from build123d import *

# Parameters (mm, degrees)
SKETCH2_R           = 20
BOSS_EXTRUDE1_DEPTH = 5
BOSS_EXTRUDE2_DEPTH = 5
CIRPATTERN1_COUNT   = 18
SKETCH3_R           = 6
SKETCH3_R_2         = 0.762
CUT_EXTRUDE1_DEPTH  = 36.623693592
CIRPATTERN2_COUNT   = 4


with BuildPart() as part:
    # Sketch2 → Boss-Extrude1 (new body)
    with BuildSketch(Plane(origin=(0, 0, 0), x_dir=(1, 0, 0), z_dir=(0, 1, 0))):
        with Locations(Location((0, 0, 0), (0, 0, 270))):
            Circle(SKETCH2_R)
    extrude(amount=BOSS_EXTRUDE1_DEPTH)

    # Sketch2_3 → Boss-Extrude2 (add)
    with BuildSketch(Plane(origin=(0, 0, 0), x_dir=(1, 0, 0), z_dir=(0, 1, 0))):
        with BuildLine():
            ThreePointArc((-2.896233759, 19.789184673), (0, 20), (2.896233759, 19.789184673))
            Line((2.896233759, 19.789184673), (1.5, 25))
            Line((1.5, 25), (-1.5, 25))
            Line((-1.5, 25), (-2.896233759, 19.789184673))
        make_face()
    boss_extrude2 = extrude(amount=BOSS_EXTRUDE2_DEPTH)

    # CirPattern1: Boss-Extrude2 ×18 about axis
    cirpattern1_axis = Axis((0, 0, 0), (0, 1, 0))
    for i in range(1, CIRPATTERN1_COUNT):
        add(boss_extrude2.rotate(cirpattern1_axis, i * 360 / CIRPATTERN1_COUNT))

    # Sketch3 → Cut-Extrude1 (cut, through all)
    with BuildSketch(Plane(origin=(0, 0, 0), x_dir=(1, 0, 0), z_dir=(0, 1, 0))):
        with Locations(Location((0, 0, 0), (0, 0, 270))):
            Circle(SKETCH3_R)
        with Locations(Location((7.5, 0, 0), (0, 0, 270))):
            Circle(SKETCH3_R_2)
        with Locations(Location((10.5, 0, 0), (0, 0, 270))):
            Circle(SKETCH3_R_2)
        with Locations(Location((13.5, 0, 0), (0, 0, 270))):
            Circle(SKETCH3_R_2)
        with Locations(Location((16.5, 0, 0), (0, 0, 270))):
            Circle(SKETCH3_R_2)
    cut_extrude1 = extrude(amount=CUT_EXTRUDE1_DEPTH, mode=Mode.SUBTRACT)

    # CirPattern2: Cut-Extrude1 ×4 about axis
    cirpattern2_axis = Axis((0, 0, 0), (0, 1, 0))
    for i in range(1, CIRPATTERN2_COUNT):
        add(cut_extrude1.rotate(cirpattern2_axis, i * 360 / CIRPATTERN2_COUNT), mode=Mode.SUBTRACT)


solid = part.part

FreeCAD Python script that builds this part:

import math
import FreeCAD as App
import Part
import Sketcher
from FreeCAD import Vector
Q = App.Units.Quantity

doc = App.newDocument("Part")
params = doc.addObject("Spreadsheet::Sheet", "Params")
for row, (alias, value) in enumerate([
    ("sketch1_diameter", "40 mm"),
    ("pad1_length", "5 mm"),
    ("sketch2_radius", "20 mm"),
    ("sketch2_width", "3 mm"),
    ("pad2_length", "5 mm"),
    ("sketch3_diameter", "12 mm"),
], start=1):
    params.set(f"A{row}", alias)
    params.set(f"B{row}", "=" + value)
    params.setAlias(f"B{row}", alias)

body = doc.addObject("PartDesign::Body", "Body")

sketch1 = body.newObject("Sketcher::SketchObject", "Sketch")
sketch1.AttachmentSupport = (doc.getObject("XZ_Plane"), [""])
sketch1.MapMode = "FlatFace"
sketch1.addGeometry(Part.Circle(Vector(0, 0, 0), Vector(0, 0, 1), 20), False)
sketch1.addConstraint(Sketcher.Constraint("Coincident", 0, 3, -1, 1))
sketch1.addConstraint(Sketcher.Constraint("Diameter", 0, Q("40 mm")))
sketch1.setExpression("Constraints[1]", "Params.sketch1_diameter")
pad1 = body.newObject("PartDesign::Pad", "Pad")
pad1.Profile = sketch1
pad1.setExpression("Length", "Params.pad1_length")
pad1.Reversed = True

sketch2 = body.newObject("Sketcher::SketchObject", "Sketch001")
sketch2.AttachmentSupport = (doc.getObject("XZ_Plane"), [""])
sketch2.MapMode = "FlatFace"
sketch2.addGeometry(Part.ArcOfCircle(Part.Circle(Vector(0, 0, 0), Vector(0, 0, 1), 20), math.radians(-98.33), math.radians(-81.67)), False)
sketch2.addGeometry(Part.LineSegment(Vector(2.9, -19.8, 0), Vector(1.5, -25, 0)), False)
sketch2.addGeometry(Part.LineSegment(Vector(1.5, -25, 0), Vector(-1.5, -25, 0)), False)
sketch2.addGeometry(Part.LineSegment(Vector(-1.5, -25, 0), Vector(-2.9, -19.8, 0)), False)
sketch2.addConstraint(Sketcher.Constraint("Coincident", 0, 2, 1, 1))
sketch2.addConstraint(Sketcher.Constraint("Coincident", 1, 2, 2, 1))
sketch2.addConstraint(Sketcher.Constraint("Coincident", 2, 2, 3, 1))
sketch2.addConstraint(Sketcher.Constraint("Coincident", 3, 2, 0, 1))
sketch2.addConstraint(Sketcher.Constraint("Horizontal", 2))
sketch2.addConstraint(Sketcher.Constraint("Coincident", 0, 3, -1, 1))
sketch2.addConstraint(Sketcher.Constraint("Horizontal", 0, 2, 3, 2))
sketch2.addConstraint(Sketcher.Constraint("Equal", 1, 3))
sketch2.addConstraint(Sketcher.Constraint("Radius", 0, Q("20 mm")))
sketch2.addConstraint(Sketcher.Constraint("DistanceX", 2, 2, 2, 1, Q("3 mm")))
sketch2.addConstraint(Sketcher.Constraint("Angle", 1, Q("-105 deg")))
sketch2.addConstraint(Sketcher.Constraint("DistanceY", 1, 2, -1, 1, Q("25 mm")))
sketch2.setExpression("Constraints[8]", "Params.sketch2_radius")
sketch2.setExpression("Constraints[9]", "Params.sketch2_width")
pad2 = body.newObject("PartDesign::Pad", "Pad001")
pad2.Profile = sketch2
pad2.setExpression("Length", "Params.pad2_length")
pad2.Reversed = True
doc.recompute()

polarpattern = body.newObject("PartDesign::PolarPattern", "PolarPattern")
polarpattern.Originals = [pad2]
polarpattern.Axis = (doc.getObject("Y_Axis"), [""])
polarpattern.Angle = 360
polarpattern.Occurrences = 18
body.Tip = polarpattern

sketch3 = body.newObject("Sketcher::SketchObject", "Sketch002")
sketch3.AttachmentSupport = (doc.getObject("XZ_Plane"), [""])
sketch3.MapMode = "FlatFace"
sketch3.addGeometry(Part.Circle(Vector(0, 0, 0), Vector(0, 0, 1), 6), False)
sketch3.addGeometry(Part.Circle(Vector(7.5, 0, 0), Vector(0, 0, 1), 0.8), False)
sketch3.addGeometry(Part.Circle(Vector(10.5, 0, 0), Vector(0, 0, 1), 0.8), False)
sketch3.addGeometry(Part.Circle(Vector(13.5, 0, 0), Vector(0, 0, 1), 0.8), False)
sketch3.addGeometry(Part.Circle(Vector(16.5, 0, 0), Vector(0, 0, 1), 0.8), False)
sketch3.addConstraint(Sketcher.Constraint("Coincident", 0, 3, -1, 1))
sketch3.addConstraint(Sketcher.Constraint("Equal", 1, 2))
sketch3.addConstraint(Sketcher.Constraint("Equal", 2, 3))
sketch3.addConstraint(Sketcher.Constraint("Equal", 3, 4))
sketch3.addConstraint(Sketcher.Constraint("PointOnObject", 1, 3, -1))
sketch3.addConstraint(Sketcher.Constraint("PointOnObject", 2, 3, -1))
sketch3.addConstraint(Sketcher.Constraint("PointOnObject", 3, 3, -1))
sketch3.addConstraint(Sketcher.Constraint("PointOnObject", 4, 3, -1))
sketch3.addConstraint(Sketcher.Constraint("Diameter", 0, Q("12 mm")))
sketch3.addConstraint(Sketcher.Constraint("Diameter", 1, Q("1.524 mm")))
sketch3.addConstraint(Sketcher.Constraint("DistanceX", 1, 3, 2, 3, Q("3 mm")))
sketch3.addConstraint(Sketcher.Constraint("DistanceX", 2, 3, 3, 3, Q("3 mm")))
sketch3.addConstraint(Sketcher.Constraint("DistanceX", 3, 3, 4, 3, Q("3 mm")))
sketch3.addConstraint(Sketcher.Constraint("DistanceX", -1, 1, 1, 3, Q("7.5 mm")))
sketch3.setExpression("Constraints[8]", "Params.sketch3_diameter")
pocket1 = body.newObject("PartDesign::Pocket", "Pocket")
pocket1.Profile = sketch3
pocket1.Type = "ThroughAll"
doc.recompute()

polarpattern2 = body.newObject("PartDesign::PolarPattern", "PolarPattern001")
polarpattern2.Originals = [pocket1]
polarpattern2.Axis = (doc.getObject("Y_Axis"), [""])
polarpattern2.Angle = 360
polarpattern2.Occurrences = 4
body.Tip = polarpattern2

doc.recompute()
